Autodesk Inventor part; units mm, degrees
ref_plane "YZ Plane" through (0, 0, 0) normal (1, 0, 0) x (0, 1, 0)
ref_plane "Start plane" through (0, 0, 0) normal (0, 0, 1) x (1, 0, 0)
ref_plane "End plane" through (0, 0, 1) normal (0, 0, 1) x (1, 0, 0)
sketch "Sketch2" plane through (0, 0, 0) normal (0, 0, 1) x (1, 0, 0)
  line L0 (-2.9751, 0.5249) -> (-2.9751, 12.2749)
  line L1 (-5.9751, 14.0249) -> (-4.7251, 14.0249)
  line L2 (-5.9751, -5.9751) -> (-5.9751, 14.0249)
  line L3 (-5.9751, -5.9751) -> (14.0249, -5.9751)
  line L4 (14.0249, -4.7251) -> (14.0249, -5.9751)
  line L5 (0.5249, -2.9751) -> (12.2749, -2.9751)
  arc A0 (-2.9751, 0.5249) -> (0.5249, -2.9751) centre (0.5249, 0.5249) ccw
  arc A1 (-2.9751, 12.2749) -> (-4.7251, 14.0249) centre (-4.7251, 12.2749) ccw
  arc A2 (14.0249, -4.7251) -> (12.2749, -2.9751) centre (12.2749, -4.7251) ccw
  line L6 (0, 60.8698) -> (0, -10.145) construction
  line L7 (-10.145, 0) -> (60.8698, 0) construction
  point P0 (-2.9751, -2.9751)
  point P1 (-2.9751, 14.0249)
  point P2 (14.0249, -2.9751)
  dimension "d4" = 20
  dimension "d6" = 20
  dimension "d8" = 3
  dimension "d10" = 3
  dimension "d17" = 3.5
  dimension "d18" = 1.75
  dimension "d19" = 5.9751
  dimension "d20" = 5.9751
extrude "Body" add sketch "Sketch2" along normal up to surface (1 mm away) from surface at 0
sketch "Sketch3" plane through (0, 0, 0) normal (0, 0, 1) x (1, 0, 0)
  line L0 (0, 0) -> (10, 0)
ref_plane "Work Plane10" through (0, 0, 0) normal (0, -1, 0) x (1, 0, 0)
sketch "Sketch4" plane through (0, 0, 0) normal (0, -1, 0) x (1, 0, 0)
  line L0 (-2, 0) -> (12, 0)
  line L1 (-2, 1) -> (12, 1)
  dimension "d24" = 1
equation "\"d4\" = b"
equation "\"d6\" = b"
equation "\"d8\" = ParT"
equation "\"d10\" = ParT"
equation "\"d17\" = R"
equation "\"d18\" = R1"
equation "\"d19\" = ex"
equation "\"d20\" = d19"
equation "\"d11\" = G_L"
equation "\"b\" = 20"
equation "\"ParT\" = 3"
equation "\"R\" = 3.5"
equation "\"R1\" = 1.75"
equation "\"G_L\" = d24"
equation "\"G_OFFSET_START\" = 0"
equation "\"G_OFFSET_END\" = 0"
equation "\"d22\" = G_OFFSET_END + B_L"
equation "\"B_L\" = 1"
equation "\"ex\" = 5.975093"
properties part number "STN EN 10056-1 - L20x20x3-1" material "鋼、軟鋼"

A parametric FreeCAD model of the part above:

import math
import FreeCAD as App
import Part
import Sketcher

V = App.Vector
Q = App.Units.Quantity

doc = App.newDocument("Part")
params = doc.addObject("Spreadsheet::Sheet", "Params")
for row, (alias, value) in enumerate([
    ("sketch1_radius", "3.5 mm"),
    ("sketch1_width", "20 mm"),
    ("sketch1_radius2", "1.75 mm"),
    ("pad1_length", "1 mm"),
], start=1):
    params.set(f"A{row}", alias)
    params.set(f"B{row}", "=" + value)
    params.setAlias(f"B{row}", alias)

body = doc.addObject("PartDesign::Body", "Body")

# Sketch on XY plane
sketch1 = body.newObject("Sketcher::SketchObject", "Sketch")
sketch1.AttachmentSupport = (doc.getObject("XY_Plane"), [""])
sketch1.MapMode = "FlatFace"
sketch1.addGeometry(Part.ArcOfCircle(Part.Circle(V(0.5, 0.5, 0), V(0, 0, 1), 3.5), math.radians(180), math.radians(270)), False)
sketch1.addGeometry(Part.LineSegment(V(-3, 0.5, 0), V(-3, 12.3, 0)), False)
sketch1.addGeometry(Part.ArcOfCircle(Part.Circle(V(-4.7, 12.3, 0), V(0, 0, 1), 1.8), math.radians(0), math.radians(90)), False)
sketch1.addGeometry(Part.LineSegment(V(-4.7, 14, 0), V(-6, 14, 0)), False)
sketch1.addGeometry(Part.LineSegment(V(-6, 14, 0), V(-6, -6, 0)), False)
sketch1.addGeometry(Part.LineSegment(V(-6, -6, 0), V(14, -6, 0)), False)
sketch1.addGeometry(Part.LineSegment(V(14, -6, 0), V(14, -4.7, 0)), False)
sketch1.addGeometry(Part.ArcOfCircle(Part.Circle(V(12.3, -4.7, 0), V(0, 0, 1), 1.8), math.radians(0), math.radians(90)), False)
sketch1.addGeometry(Part.LineSegment(V(12.3, -3, 0), V(0.5, -3, 0)), False)
sketch1.addConstraint(Sketcher.Constraint("Tangent", 0, 1, 1, 1))
sketch1.addConstraint(Sketcher.Constraint("Tangent", 1, 2, 2, 1))
sketch1.addConstraint(Sketcher.Constraint("Tangent", 2, 2, 3, 1))
sketch1.addConstraint(Sketcher.Constraint("Coincident", 3, 2, 4, 1))
sketch1.addConstraint(Sketcher.Constraint("Coincident", 4, 2, 5, 1))
sketch1.addConstraint(Sketcher.Constraint("Coincident", 5, 2, 6, 1))
sketch1.addConstraint(Sketcher.Constraint("Tangent", 6, 2, 7, 1))
sketch1.addConstraint(Sketcher.Constraint("Tangent", 7, 2, 8, 1))
sketch1.addConstraint(Sketcher.Constraint("Tangent", 8, 2, 0, 2))
sketch1.addConstraint(Sketcher.Constraint("Vertical", 1))
sketch1.addConstraint(Sketcher.Constraint("Horizontal", 3))
sketch1.addConstraint(Sketcher.Constraint("Vertical", 4))
sketch1.addConstraint(Sketcher.Constraint("Horizontal", 5))
sketch1.addConstraint(Sketcher.Constraint("Vertical", 6))
sketch1.addConstraint(Sketcher.Constraint("Horizontal", 8))
sketch1.addConstraint(Sketcher.Constraint("Equal", 2, 7))
sketch1.addConstraint(Sketcher.Constraint("Equal", 8, 1))
sketch1.addConstraint(Sketcher.Constraint("Equal", 5, 4))
sketch1.addConstraint(Sketcher.Constraint("Radius", 0, Q("3.5 mm")))
sketch1.addConstraint(Sketcher.Constraint("DistanceX", 5, 1, 5, 2, Q("20 mm")))
sketch1.addConstraint(Sketcher.Constraint("Radius", 2, Q("1.75 mm")))
sketch1.addConstraint(Sketcher.Constraint("DistanceX", 3, 2, 1, 2, Q("3 mm")))
sketch1.addConstraint(Sketcher.Constraint("DistanceX", 3, 2, -1, 1, Q("5.975 mm")))
sketch1.addConstraint(Sketcher.Constraint("DistanceY", 4, 2, -1, 1, Q("5.975 mm")))
sketch1.setExpression("Constraints[18]", "Params.sketch1_radius")
sketch1.setExpression("Constraints[19]", "Params.sketch1_width")
sketch1.setExpression("Constraints[20]", "Params.sketch1_radius2")
pad1 = body.newObject("PartDesign::Pad", "Pad")
pad1.Profile = sketch1
pad1.setExpression("Length", "Params.pad1_length")

doc.recompute()
